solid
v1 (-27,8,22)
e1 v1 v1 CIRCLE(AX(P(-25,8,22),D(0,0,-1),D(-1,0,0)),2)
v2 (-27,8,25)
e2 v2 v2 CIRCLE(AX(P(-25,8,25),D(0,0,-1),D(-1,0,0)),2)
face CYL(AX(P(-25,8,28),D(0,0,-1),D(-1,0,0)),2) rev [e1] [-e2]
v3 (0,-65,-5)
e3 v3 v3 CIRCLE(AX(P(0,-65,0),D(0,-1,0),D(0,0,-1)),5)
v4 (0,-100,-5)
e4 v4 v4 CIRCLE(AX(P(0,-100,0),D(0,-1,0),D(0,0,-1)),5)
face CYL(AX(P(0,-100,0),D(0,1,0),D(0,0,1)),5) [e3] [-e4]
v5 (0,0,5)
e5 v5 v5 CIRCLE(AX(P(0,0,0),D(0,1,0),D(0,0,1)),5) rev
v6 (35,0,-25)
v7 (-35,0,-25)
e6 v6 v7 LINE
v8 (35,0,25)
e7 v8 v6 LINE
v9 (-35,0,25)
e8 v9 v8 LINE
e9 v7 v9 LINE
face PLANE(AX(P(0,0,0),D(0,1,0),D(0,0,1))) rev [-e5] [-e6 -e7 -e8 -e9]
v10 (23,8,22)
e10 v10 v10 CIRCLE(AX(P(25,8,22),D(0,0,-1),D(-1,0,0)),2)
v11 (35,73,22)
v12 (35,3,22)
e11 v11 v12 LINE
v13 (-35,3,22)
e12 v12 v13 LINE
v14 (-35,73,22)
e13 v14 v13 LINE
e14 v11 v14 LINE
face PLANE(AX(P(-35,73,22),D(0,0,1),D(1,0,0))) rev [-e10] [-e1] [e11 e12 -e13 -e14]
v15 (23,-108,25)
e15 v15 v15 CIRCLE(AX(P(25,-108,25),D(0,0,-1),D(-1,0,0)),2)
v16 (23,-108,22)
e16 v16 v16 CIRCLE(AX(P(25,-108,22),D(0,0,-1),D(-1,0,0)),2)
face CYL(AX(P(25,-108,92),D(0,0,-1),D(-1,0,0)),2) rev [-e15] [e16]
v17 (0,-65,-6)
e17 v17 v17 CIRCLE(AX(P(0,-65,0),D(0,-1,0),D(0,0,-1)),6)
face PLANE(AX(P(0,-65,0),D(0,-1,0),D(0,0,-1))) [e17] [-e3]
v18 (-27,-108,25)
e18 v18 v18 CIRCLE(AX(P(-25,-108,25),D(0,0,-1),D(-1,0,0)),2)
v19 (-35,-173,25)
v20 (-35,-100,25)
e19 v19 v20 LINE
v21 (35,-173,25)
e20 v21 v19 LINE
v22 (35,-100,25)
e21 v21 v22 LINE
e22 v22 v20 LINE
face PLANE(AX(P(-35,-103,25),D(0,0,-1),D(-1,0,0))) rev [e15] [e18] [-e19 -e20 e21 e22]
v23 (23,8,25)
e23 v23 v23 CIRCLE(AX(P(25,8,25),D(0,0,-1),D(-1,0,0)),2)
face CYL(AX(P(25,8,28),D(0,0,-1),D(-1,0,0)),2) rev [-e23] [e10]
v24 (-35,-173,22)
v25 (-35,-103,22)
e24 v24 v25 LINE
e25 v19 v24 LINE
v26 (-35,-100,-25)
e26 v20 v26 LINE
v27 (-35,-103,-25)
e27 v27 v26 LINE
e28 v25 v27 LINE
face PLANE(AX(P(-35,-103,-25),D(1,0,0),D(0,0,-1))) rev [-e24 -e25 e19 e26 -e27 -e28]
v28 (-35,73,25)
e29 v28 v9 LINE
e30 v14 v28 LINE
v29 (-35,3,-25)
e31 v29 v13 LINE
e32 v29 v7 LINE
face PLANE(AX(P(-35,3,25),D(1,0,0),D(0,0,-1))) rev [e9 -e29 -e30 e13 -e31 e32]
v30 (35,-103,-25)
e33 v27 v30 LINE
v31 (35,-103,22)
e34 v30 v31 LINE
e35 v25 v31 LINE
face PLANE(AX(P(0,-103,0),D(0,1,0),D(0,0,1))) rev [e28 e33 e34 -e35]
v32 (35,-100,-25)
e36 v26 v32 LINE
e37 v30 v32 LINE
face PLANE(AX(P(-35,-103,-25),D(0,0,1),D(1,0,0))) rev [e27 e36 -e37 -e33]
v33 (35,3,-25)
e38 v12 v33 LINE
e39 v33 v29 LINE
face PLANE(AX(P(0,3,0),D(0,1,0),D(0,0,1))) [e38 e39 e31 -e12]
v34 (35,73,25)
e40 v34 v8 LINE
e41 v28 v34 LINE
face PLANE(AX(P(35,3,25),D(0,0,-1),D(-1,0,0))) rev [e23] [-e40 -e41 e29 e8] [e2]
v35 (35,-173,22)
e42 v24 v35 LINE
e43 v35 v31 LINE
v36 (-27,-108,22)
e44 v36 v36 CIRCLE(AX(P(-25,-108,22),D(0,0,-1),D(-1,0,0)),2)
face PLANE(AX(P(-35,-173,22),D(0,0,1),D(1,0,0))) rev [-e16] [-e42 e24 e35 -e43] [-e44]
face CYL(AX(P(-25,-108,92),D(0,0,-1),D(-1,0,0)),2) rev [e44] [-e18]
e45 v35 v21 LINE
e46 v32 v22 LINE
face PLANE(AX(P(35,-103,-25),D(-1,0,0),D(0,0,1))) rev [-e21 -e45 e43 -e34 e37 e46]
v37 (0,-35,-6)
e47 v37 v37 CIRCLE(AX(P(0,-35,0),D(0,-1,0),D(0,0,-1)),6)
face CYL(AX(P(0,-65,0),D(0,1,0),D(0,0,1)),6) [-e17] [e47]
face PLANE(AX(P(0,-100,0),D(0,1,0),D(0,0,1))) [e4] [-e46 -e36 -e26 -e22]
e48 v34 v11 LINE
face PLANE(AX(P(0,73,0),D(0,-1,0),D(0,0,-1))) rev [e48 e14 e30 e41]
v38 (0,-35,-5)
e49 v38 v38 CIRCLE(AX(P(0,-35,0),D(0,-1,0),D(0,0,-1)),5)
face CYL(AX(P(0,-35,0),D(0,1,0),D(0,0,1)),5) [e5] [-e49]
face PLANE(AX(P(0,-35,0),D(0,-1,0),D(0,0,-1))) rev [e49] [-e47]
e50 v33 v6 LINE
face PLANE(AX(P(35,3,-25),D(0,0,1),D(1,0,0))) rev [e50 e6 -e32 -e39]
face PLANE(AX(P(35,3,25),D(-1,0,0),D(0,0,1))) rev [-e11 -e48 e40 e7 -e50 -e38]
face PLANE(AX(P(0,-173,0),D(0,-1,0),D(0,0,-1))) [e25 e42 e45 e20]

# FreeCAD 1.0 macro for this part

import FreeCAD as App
import Part
import Sketcher

V = App.Vector

doc = App.newDocument("Part")
body = doc.addObject("PartDesign::Body", "Body")

sketch1 = body.newObject("Sketcher::SketchObject", "Sketch")
sketch1.AttachmentSupport = (doc.getObject("XZ_Plane"), [""])
sketch1.MapMode = "FlatFace"
sketch1.addGeometry([
    Part.LineSegment(V(-35, -25, 0), V(-35, 25, 0)),
    Part.LineSegment(V(-35, 25, 0), V(35, 25, 0)),
    Part.LineSegment(V(35, 25, 0), V(35, -25, 0)),
    Part.LineSegment(V(35, -25, 0), V(-35, -25, 0)),
], False)
sketch1.addConstraint([
    Sketcher.Constraint("Coincident", 0, 2, 1, 1),
    Sketcher.Constraint("Coincident", 1, 2, 2, 1),
    Sketcher.Constraint("Coincident", 2, 2, 3, 1),
    Sketcher.Constraint("Coincident", 3, 2, 0, 1),
    Sketcher.Constraint("Vertical", 0),
    Sketcher.Constraint("Horizontal", 1),
    Sketcher.Constraint("Vertical", 2),
    Sketcher.Constraint("Horizontal", 3),
    Sketcher.Constraint("Symmetric", 0, 2, 2, 2, -1, 1),
    Sketcher.Constraint("DistanceX", 1, 1, 1, 2, 70.0),
    Sketcher.Constraint("DistanceY", 0, 1, 0, 2, 50.0),
])
pad1 = body.newObject("PartDesign::Pad", "Pad")
pad1.Profile = sketch1
pad1.Length = 3
pad1.Reversed = True

sketch2 = body.newObject("Sketcher::SketchObject", "Sketch001")
sketch2.AttachmentSupport = (doc.getObject("XZ_Plane"), [""])
sketch2.MapMode = "FlatFace"
sketch2.AttachmentOffset = App.Placement(V(0, 0, -3), App.Rotation())
sketch2.addGeometry([
    Part.LineSegment(V(-35, 22, 0), V(-35, 25, 0)),
    Part.LineSegment(V(-35, 25, 0), V(35, 25, 0)),
    Part.LineSegment(V(35, 25, 0), V(35, 22, 0)),
    Part.LineSegment(V(35, 22, 0), V(-35, 22, 0)),
], False)
sketch2.addConstraint([
    Sketcher.Constraint("Coincident", 0, 2, 1, 1),
    Sketcher.Constraint("Coincident", 1, 2, 2, 1),
    Sketcher.Constraint("Coincident", 2, 2, 3, 1),
    Sketcher.Constraint("Coincident", 3, 2, 0, 1),
    Sketcher.Constraint("Vertical", 0),
    Sketcher.Constraint("Horizontal", 1),
    Sketcher.Constraint("Vertical", 2),
    Sketcher.Constraint("Horizontal", 3),
    Sketcher.Constraint("DistanceX", 1, 1, 1, 2, 70.0),
    Sketcher.Constraint("DistanceY", 0, 1, 0, 2, 3.0),
    Sketcher.Constraint("DistanceX", 0, 2, -1, 1, 35.0),
    Sketcher.Constraint("DistanceY", -1, 1, 0, 2, 25.0),
])
pad2 = body.newObject("PartDesign::Pad", "Pad001")
pad2.Profile = sketch2
pad2.Length = 70
pad2.Reversed = True

sketch3 = body.newObject("Sketcher::SketchObject", "Sketch002")
sketch3.AttachmentSupport = (doc.getObject("XY_Plane"), [""])
sketch3.MapMode = "FlatFace"
sketch3.AttachmentOffset = App.Placement(V(0, 0, 22), App.Rotation())
sketch3.addGeometry([
    Part.Circle(V(-25, 8, 0), V(0, 0, 1), 2),
    Part.Circle(V(25, 8, 0), V(0, 0, 1), 2),
], False)
sketch3.addConstraint([
    Sketcher.Constraint("Equal", 0, 1),
    Sketcher.Constraint("Symmetric", 0, 3, 1, 3, -2),
    Sketcher.Constraint("Diameter", 0, 4.0),
    Sketcher.Constraint("DistanceX", 0, 3, -1, 1, 25.0),
    Sketcher.Constraint("DistanceY", -1, 1, 0, 3, 8.0),
])
pocket1 = body.newObject("PartDesign::Pocket", "Pocket")
pocket1.Profile = sketch3
pocket1.Length = 6
pocket1.Reversed = True

sketch4 = body.newObject("Sketcher::SketchObject", "Sketch003")
sketch4.AttachmentSupport = (doc.getObject("XZ_Plane"), [""])
sketch4.MapMode = "FlatFace"
sketch4.addGeometry(Part.Circle(V(0, 0, 0), V(0, 0, 1), 5), False)
sketch4.addConstraint([
    Sketcher.Constraint("Coincident", 0, 3, -1, 1),
    Sketcher.Constraint("Diameter", 0, 10.0),
])
pad3 = body.newObject("PartDesign::Pad", "Pad002")
pad3.Profile = sketch4
pad3.Length = 35

sketch5 = body.newObject("Sketcher::SketchObject", "Sketch004")
sketch5.AttachmentSupport = (doc.getObject("XZ_Plane"), [""])
sketch5.MapMode = "FlatFace"
sketch5.AttachmentOffset = App.Placement(V(0, 0, 35), App.Rotation())
sketch5.addGeometry(Part.Circle(V(0, 0, 0), V(0, 0, 1), 6), False)
sketch5.addConstraint([
    Sketcher.Constraint("Coincident", 0, 3, -1, 1),
    Sketcher.Constraint("Diameter", 0, 12.0),
])
pad4 = body.newObject("PartDesign::Pad", "Pad003")
pad4.Profile = sketch5
pad4.Length = 30

sketch6 = body.newObject("Sketcher::SketchObject", "Sketch005")
sketch6.AttachmentSupport = (doc.getObject("XZ_Plane"), [""])
sketch6.MapMode = "FlatFace"
sketch6.AttachmentOffset = App.Placement(V(0, 0, 65), App.Rotation())
sketch6.addGeometry(Part.Circle(V(0, 0, 0), V(0, 0, 1), 5), False)
sketch6.addConstraint([
    Sketcher.Constraint("Coincident", 0, 3, -1, 1),
    Sketcher.Constraint("Diameter", 0, 10.0),
])
pad5 = body.newObject("PartDesign::Pad", "Pad004")
pad5.Profile = sketch6
pad5.Length = 35

sketch7 = body.newObject("Sketcher::SketchObject", "Sketch006")
sketch7.AttachmentSupport = (doc.getObject("XZ_Plane"), [""])
sketch7.MapMode = "FlatFace"
sketch7.AttachmentOffset = App.Placement(V(0, 0, 100), App.Rotation())
sketch7.addGeometry([
    Part.LineSegment(V(-35, 25, 0), V(-35, -25, 0)),
    Part.LineSegment(V(-35, -25, 0), V(35, -25, 0)),
    Part.LineSegment(V(35, -25, 0), V(35, 25, 0)),
    Part.LineSegment(V(35, 25, 0), V(-35, 25, 0)),
], False)
sketch7.addConstraint([
    Sketcher.Constraint("Coincident", 0, 2, 1, 1),
    Sketcher.Constraint("Coincident", 1, 2, 2, 1),
    Sketcher.Constraint("Coincident", 2, 2, 3, 1),
    Sketcher.Constraint("Coincident", 3, 2, 0, 1),
    Sketcher.Constraint("Vertical", 0),
    Sketcher.Constraint("Horizontal", 1),
    Sketcher.Constraint("Vertical", 2),
    Sketcher.Constraint("Horizontal", 3),
    Sketcher.Constraint("Symmetric", 0, 2, 2, 2, -1, 1),
    Sketcher.Constraint("DistanceX", 1, 1, 1, 2, 70.0),
    Sketcher.Constraint("DistanceY", 0, 2, 0, 1, 50.0),
])
pad6 = body.newObject("PartDesign::Pad", "Pad005")
pad6.Profile = sketch7
pad6.Length = 3

sketch8 = body.newObject("Sketcher::SketchObject", "Sketch007")
sketch8.AttachmentSupport = (doc.getObject("XZ_Plane"), [""])
sketch8.MapMode = "FlatFace"
sketch8.AttachmentOffset = App.Placement(V(0, 0, 103), App.Rotation())
sketch8.addGeometry([
    Part.LineSegment(V(-35, 25, 0), V(-35, 22, 0)),
    Part.LineSegment(V(-35, 22, 0), V(35, 22, 0)),
    Part.LineSegment(V(35, 22, 0), V(35, 25, 0)),
    Part.LineSegment(V(35, 25, 0), V(-35, 25, 0)),
], False)
sketch8.addConstraint([
    Sketcher.Constraint("Coincident", 0, 2, 1, 1),
    Sketcher.Constraint("Coincident", 1, 2, 2, 1),
    Sketcher.Constraint("Coincident", 2, 2, 3, 1),
    Sketcher.Constraint("Coincident", 3, 2, 0, 1),
    Sketcher.Constraint("Vertical", 0),
    Sketcher.Constraint("Horizontal", 1),
    Sketcher.Constraint("Vertical", 2),
    Sketcher.Constraint("Horizontal", 3),
    Sketcher.Constraint("DistanceX", 1, 1, 1, 2, 70.0),
    Sketcher.Constraint("DistanceY", 0, 2, 0, 1, 3.0),
    Sketcher.Constraint("DistanceX", 0, 2, -1, 1, 35.0),
    Sketcher.Constraint("DistanceY", -1, 1, 0, 2, 22.0),
])
pad7 = body.newObject("PartDesign::Pad", "Pad006")
pad7.Profile = sketch8
pad7.Length = 70

sketch9 = body.newObject("Sketcher::SketchObject", "Sketch008")
sketch9.AttachmentSupport = (doc.getObject("XY_Plane"), [""])
sketch9.MapMode = "FlatFace"
sketch9.AttachmentOffset = App.Placement(V(0, 0, 22), App.Rotation())
sketch9.addGeometry([
    Part.Circle(V(25, -108, 0), V(0, 0, 1), 2),
    Part.Circle(V(-25, -108, 0), V(0, 0, 1), 2),
], False)
sketch9.addConstraint([
    Sketcher.Constraint("Equal", 0, 1),
    Sketcher.Constraint("Symmetric", 0, 3, 1, 3, -2),
    Sketcher.Constraint("Diameter", 0, 4.0),
    Sketcher.Constraint("DistanceX", -1, 1, 0, 3, 25.0),
    Sketcher.Constraint("DistanceY", 0, 3, -1, 1, 108.0),
])
pocket2 = body.newObject("PartDesign::Pocket", "Pocket001")
pocket2.Profile = sketch9
pocket2.Length = 70
pocket2.Reversed = True

doc.recompute()
